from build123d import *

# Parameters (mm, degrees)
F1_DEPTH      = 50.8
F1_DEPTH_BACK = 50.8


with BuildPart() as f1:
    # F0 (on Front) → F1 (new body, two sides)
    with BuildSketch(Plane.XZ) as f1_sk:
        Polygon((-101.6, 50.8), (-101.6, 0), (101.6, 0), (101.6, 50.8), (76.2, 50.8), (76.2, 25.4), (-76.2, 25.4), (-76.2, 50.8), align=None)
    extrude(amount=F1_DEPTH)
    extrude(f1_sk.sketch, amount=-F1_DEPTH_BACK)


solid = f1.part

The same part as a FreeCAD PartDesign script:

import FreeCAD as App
import Part
import Sketcher

V = App.Vector
Q = App.Units.Quantity

doc = App.newDocument("Part")
body = doc.addObject("PartDesign::Body", "Body")

sketch1 = body.newObject("Sketcher::SketchObject", "Sketch")
sketch1.AttachmentSupport = (doc.getObject("XZ_Plane"), [""])
sketch1.MapMode = "FlatFace"
sketch1.addGeometry(Part.LineSegment(V(-101.6, 50.8, 0), V(-101.6, 0, 0)), False)
sketch1.addGeometry(Part.LineSegment(V(-101.6, 0, 0), V(101.6, 0, 0)), False)
sketch1.addGeometry(Part.LineSegment(V(101.6, 0, 0), V(101.6, 50.8, 0)), False)
sketch1.addGeometry(Part.LineSegment(V(101.6, 50.8, 0), V(76.2, 50.8, 0)), False)
sketch1.addGeometry(Part.LineSegment(V(76.2, 50.8, 0), V(76.2, 25.4, 0)), False)
sketch1.addGeometry(Part.LineSegment(V(76.2, 25.4, 0), V(-76.2, 25.4, 0)), False)
sketch1.addGeometry(Part.LineSegment(V(-76.2, 25.4, 0), V(-76.2, 50.8, 0)), False)
sketch1.addGeometry(Part.LineSegment(V(-76.2, 50.8, 0), V(-101.6, 50.8, 0)), False)
sketch1.addConstraint(Sketcher.Constraint("Coincident", 0, 2, 1, 1))
sketch1.addConstraint(Sketcher.Constraint("Coincident", 1, 2, 2, 1))
sketch1.addConstraint(Sketcher.Constraint("Coincident", 2, 2, 3, 1))
sketch1.addConstraint(Sketcher.Constraint("Coincident", 3, 2, 4, 1))
sketch1.addConstraint(Sketcher.Constraint("Coincident", 4, 2, 5, 1))
sketch1.addConstraint(Sketcher.Constraint("Coincident", 5, 2, 6, 1))
sketch1.addConstraint(Sketcher.Constraint("Coincident", 6, 2, 7, 1))
sketch1.addConstraint(Sketcher.Constraint("Coincident", 7, 2, 0, 1))
sketch1.addConstraint(Sketcher.Constraint("Vertical", 0))
sketch1.addConstraint(Sketcher.Constraint("Horizontal", 1))
sketch1.addConstraint(Sketcher.Constraint("Vertical", 2))
sketch1.addConstraint(Sketcher.Constraint("Horizontal", 3))
sketch1.addConstraint(Sketcher.Constraint("Vertical", 4))
sketch1.addConstraint(Sketcher.Constraint("Horizontal", 5))
sketch1.addConstraint(Sketcher.Constraint("Vertical", 6))
sketch1.addConstraint(Sketcher.Constraint("Horizontal", 7))
sketch1.addConstraint(Sketcher.Constraint("Symmetric", 0, 2, 1, 2, -1, 1))
sketch1.addConstraint(Sketcher.Constraint("Symmetric", 3, 2, 6, 2, -2))
sketch1.addConstraint(Sketcher.Constraint("Equal", 7, 4))
sketch1.addConstraint(Sketcher.Constraint("DistanceX", 1, 1, 1, 2, Q("8 in")))
sketch1.addConstraint(Sketcher.Constraint("DistanceX", 3, 2, 3, 1, Q("1 in")))
sketch1.addConstraint(Sketcher.Constraint("DistanceY", 0, 2, 0, 1, Q("2 in")))
pad1 = body.newObject("PartDesign::Pad", "Pad")
pad1.Profile = sketch1
pad1.Type = "TwoLengths"
pad1.Length = Q("2 in")
pad1.Length2 = Q("2 in")

doc.recompute()
